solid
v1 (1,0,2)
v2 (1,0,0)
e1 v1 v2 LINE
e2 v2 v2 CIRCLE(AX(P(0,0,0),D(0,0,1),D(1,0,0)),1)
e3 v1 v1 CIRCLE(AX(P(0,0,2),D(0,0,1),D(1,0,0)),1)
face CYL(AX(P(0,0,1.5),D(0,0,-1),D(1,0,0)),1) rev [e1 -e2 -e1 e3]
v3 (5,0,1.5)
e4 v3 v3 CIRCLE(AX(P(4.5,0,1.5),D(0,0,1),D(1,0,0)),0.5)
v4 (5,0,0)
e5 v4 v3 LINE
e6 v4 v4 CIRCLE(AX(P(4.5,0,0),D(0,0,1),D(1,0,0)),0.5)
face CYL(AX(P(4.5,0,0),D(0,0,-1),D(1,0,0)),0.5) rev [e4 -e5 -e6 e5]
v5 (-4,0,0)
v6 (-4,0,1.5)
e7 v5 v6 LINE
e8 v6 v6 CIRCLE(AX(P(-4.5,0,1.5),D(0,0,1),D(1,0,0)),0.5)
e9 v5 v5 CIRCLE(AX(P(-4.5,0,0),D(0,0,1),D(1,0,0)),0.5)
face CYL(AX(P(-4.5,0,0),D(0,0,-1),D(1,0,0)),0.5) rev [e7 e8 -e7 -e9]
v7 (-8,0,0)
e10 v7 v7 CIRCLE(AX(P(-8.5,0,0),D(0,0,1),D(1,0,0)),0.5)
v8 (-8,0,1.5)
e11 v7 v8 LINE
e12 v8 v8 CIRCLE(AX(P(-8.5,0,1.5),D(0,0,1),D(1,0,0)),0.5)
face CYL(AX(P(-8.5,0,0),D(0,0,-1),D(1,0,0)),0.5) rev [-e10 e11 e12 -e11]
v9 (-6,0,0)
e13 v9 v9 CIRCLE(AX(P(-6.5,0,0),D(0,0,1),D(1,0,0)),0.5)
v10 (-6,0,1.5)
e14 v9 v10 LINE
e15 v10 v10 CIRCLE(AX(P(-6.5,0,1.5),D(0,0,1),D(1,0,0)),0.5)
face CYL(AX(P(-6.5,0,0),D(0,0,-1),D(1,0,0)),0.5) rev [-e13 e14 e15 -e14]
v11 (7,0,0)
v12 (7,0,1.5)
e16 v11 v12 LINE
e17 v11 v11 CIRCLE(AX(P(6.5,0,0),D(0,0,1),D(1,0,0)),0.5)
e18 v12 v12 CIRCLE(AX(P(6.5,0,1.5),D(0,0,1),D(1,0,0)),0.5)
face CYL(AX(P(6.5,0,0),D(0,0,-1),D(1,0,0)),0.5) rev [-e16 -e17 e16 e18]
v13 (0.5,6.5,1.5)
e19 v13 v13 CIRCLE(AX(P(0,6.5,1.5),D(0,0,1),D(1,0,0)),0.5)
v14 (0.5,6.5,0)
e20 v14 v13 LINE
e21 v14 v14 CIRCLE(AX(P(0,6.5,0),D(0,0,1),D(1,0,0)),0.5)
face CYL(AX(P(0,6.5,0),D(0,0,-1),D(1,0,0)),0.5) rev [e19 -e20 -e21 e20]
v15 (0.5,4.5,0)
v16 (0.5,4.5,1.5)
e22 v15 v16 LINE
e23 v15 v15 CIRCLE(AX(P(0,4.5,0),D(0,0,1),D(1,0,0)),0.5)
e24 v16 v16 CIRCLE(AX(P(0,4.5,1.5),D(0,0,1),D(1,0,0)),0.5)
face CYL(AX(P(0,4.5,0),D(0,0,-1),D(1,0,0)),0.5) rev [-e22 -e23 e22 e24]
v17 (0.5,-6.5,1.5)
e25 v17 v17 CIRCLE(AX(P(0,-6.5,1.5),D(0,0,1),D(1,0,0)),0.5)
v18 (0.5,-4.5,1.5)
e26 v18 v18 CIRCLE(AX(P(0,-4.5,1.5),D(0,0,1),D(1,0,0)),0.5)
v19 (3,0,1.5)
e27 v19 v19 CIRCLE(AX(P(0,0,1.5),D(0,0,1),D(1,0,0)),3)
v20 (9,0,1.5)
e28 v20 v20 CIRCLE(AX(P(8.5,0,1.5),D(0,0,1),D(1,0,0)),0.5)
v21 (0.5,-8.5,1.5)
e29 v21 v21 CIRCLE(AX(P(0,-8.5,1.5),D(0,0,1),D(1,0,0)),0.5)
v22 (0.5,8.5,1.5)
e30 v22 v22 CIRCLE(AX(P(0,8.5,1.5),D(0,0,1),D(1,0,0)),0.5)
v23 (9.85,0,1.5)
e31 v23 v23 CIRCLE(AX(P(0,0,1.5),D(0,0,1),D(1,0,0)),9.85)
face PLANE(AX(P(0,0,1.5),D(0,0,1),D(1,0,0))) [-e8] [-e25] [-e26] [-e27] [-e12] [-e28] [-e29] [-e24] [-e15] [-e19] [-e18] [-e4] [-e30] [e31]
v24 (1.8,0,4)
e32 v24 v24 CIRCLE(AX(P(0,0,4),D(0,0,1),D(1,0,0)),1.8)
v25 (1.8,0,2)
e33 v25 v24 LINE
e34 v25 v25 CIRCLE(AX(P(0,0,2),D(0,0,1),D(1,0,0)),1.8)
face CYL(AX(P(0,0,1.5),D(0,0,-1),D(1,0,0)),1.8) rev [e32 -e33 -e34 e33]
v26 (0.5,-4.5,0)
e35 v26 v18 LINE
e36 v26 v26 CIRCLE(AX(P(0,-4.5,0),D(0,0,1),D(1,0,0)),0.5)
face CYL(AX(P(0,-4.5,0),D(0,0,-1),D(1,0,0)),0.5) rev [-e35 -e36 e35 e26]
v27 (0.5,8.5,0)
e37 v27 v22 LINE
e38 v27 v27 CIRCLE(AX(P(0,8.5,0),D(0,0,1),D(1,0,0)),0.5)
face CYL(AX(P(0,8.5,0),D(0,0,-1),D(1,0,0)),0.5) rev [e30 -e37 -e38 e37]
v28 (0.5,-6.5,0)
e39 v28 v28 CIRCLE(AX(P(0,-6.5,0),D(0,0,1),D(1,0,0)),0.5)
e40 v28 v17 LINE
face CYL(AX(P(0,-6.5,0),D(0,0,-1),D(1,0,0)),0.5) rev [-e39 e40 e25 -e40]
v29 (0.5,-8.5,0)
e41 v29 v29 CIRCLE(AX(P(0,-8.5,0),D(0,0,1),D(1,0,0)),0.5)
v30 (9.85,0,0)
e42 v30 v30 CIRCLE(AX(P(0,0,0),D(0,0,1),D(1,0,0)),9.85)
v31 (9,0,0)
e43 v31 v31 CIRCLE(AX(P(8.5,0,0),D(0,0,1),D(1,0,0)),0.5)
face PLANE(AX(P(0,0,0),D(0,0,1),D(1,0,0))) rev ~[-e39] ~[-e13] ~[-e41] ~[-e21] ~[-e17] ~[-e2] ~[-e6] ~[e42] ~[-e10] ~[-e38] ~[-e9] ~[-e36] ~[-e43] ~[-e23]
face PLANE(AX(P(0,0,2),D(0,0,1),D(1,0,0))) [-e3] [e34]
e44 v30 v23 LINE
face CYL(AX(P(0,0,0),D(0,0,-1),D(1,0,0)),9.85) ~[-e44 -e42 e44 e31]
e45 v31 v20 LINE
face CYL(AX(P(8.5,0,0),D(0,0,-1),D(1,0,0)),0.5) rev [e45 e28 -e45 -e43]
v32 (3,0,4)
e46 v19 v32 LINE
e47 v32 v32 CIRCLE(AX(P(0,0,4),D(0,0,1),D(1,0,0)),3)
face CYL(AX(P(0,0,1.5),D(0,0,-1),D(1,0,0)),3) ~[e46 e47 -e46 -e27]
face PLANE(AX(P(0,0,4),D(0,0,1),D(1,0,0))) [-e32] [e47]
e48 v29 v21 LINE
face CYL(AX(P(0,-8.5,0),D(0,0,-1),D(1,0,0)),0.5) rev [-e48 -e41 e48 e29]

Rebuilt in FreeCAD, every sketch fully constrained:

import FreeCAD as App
import Part
import Sketcher
from FreeCAD import Vector
Q = App.Units.Quantity

doc = App.newDocument("Part")
params = doc.addObject("Spreadsheet::Sheet", "Params")
for row, (alias, value) in enumerate([
    ("sketch1_diameter", "1 mm"),
    ("sketch1_diameter2", "2 mm"),
    ("sketch1_diameter3", "19.7 mm"),
    ("pad1_length", "1.5 mm"),
    ("sketch2_diameter", "6 mm"),
    ("sketch2_diameter2", "3.6 mm"),
    ("pad2_length", "2.5 mm"),
    ("sketch3_diameter", "2 mm"),
    ("sketch3_diameter2", "3.6 mm"),
    ("pad3_length", "0.5 mm"),
], start=1):
    params.set(f"A{row}", alias)
    params.set(f"B{row}", "=" + value)
    params.setAlias(f"B{row}", alias)

body = doc.addObject("PartDesign::Body", "Body")

sketch1 = body.newObject("Sketcher::SketchObject", "Sketch")
sketch1.AttachmentSupport = (doc.getObject("XY_Plane"), [""])
sketch1.MapMode = "FlatFace"
sketch1.addGeometry([
    Part.Circle(Vector(0, 0, 0), Vector(0, 0, 1), 9.8),
    Part.Circle(Vector(0, -8.5, 0), Vector(0, 0, 1), 0.5),
    Part.Circle(Vector(0, -6.5, 0), Vector(0, 0, 1), 0.5),
    Part.Circle(Vector(0, -4.5, 0), Vector(0, 0, 1), 0.5),
    Part.Circle(Vector(-8.5, 0, 0), Vector(0, 0, 1), 0.5),
    Part.Circle(Vector(-6.5, 0, 0), Vector(0, 0, 1), 0.5),
    Part.Circle(Vector(-4.5, 0, 0), Vector(0, 0, 1), 0.5),
    Part.Circle(Vector(0, 0, 0), Vector(0, 0, 1), 1),
    Part.Circle(Vector(4.5, 0, 0), Vector(0, 0, 1), 0.5),
    Part.Circle(Vector(6.5, 0, 0), Vector(0, 0, 1), 0.5),
    Part.Circle(Vector(8.5, 0, 0), Vector(0, 0, 1), 0.5),
    Part.Circle(Vector(0, 4.5, 0), Vector(0, 0, 1), 0.5),
    Part.Circle(Vector(0, 6.5, 0), Vector(0, 0, 1), 0.5),
    Part.Circle(Vector(0, 8.5, 0), Vector(0, 0, 1), 0.5),
], False)
sketch1.addConstraint([
    Sketcher.Constraint("Coincident", 0, 3, -1, 1),
    Sketcher.Constraint("Coincident", 7, 3, -1, 1),
    Sketcher.Constraint("Equal", 1, 2),
    Sketcher.Constraint("Equal", 2, 3),
    Sketcher.Constraint("Equal", 3, 4),
    Sketcher.Constraint("Equal", 4, 5),
    Sketcher.Constraint("Equal", 5, 6),
    Sketcher.Constraint("Equal", 6, 8),
    Sketcher.Constraint("Equal", 8, 9),
    Sketcher.Constraint("Equal", 9, 10),
    Sketcher.Constraint("Equal", 10, 11),
    Sketcher.Constraint("Equal", 11, 12),
    Sketcher.Constraint("Equal", 12, 13),
    Sketcher.Constraint("Symmetric", 6, 3, 8, 3, -1, 1),
    Sketcher.Constraint("Symmetric", 5, 3, 9, 3, -1, 1),
    Sketcher.Constraint("Symmetric", 4, 3, 10, 3, -1, 1),
    Sketcher.Constraint("Symmetric", 3, 3, 11, 3, -1, 1),
    Sketcher.Constraint("Symmetric", 2, 3, 12, 3, -1, 1),
    Sketcher.Constraint("Symmetric", 1, 3, 13, 3, -1, 1),
    Sketcher.Constraint("PointOnObject", 1, 3, -2),
    Sketcher.Constraint("PointOnObject", 2, 3, -2),
    Sketcher.Constraint("PointOnObject", 3, 3, -2),
    Sketcher.Constraint("PointOnObject", 4, 3, -1),
    Sketcher.Constraint("PointOnObject", 5, 3, -1),
    Sketcher.Constraint("PointOnObject", 6, 3, -1),
    Sketcher.Constraint("Diameter", 1, Q("1 mm")),
    Sketcher.Constraint("Diameter", 7, Q("2 mm")),
    Sketcher.Constraint("Diameter", 0, Q("19.7 mm")),
    Sketcher.Constraint("DistanceY", 1, 3, 2, 3, Q("2 mm")),
    Sketcher.Constraint("DistanceY", 2, 3, 3, 3, Q("2 mm")),
    Sketcher.Constraint("DistanceX", 4, 3, 5, 3, Q("2 mm")),
    Sketcher.Constraint("DistanceX", 5, 3, 6, 3, Q("2 mm")),
    Sketcher.Constraint("DistanceX", 6, 3, 8, 3, Q("9 mm")),
    Sketcher.Constraint("DistanceY", 1, 3, -1, 1, Q("8.5 mm")),
])
sketch1.setExpression("Constraints[25]", "Params.sketch1_diameter")
sketch1.setExpression("Constraints[26]", "Params.sketch1_diameter2")
sketch1.setExpression("Constraints[27]", "Params.sketch1_diameter3")
pad1 = body.newObject("PartDesign::Pad", "Pad")
pad1.Profile = sketch1
pad1.setExpression("Length", "Params.pad1_length")

sketch2 = body.newObject("Sketcher::SketchObject", "Sketch001")
sketch2.AttachmentSupport = (doc.getObject("XY_Plane"), [""])
sketch2.MapMode = "FlatFace"
sketch2.AttachmentOffset = App.Placement(Vector(0, 0, 1.5), App.Rotation())
sketch2.addGeometry([
    Part.Circle(Vector(0, 0, 0), Vector(0, 0, 1), 3),
    Part.Circle(Vector(0, 0, 0), Vector(0, 0, 1), 1.8),
], False)
sketch2.addConstraint([
    Sketcher.Constraint("Coincident", 0, 3, -1, 1),
    Sketcher.Constraint("Coincident", 1, 3, -1, 1),
    Sketcher.Constraint("Diameter", 0, Q("6 mm")),
    Sketcher.Constraint("Diameter", 1, Q("3.6 mm")),
])
sketch2.setExpression("Constraints[2]", "Params.sketch2_diameter")
sketch2.setExpression("Constraints[3]", "Params.sketch2_diameter2")
pad2 = body.newObject("PartDesign::Pad", "Pad001")
pad2.Profile = sketch2
pad2.setExpression("Length", "Params.pad2_length")

sketch3 = body.newObject("Sketcher::SketchObject", "Sketch002")
sketch3.AttachmentSupport = (doc.getObject("XY_Plane"), [""])
sketch3.MapMode = "FlatFace"
sketch3.AttachmentOffset = App.Placement(Vector(0, 0, 1.5), App.Rotation())
sketch3.addGeometry([
    Part.Circle(Vector(0, 0, 0), Vector(0, 0, 1), 1.8),
    Part.Circle(Vector(0, 0, 0), Vector(0, 0, 1), 1),
], False)
sketch3.addConstraint([
    Sketcher.Constraint("Coincident", 0, 3, -1, 1),
    Sketcher.Constraint("Coincident", 1, 3, -1, 1),
    Sketcher.Constraint("Diameter", 1, Q("2 mm")),
    Sketcher.Constraint("Diameter", 0, Q("3.6 mm")),
])
sketch3.setExpression("Constraints[2]", "Params.sketch3_diameter")
sketch3.setExpression("Constraints[3]", "Params.sketch3_diameter2")
pad3 = body.newObject("PartDesign::Pad", "Pad002")
pad3.Profile = sketch3
pad3.setExpression("Length", "Params.pad3_length")

doc.recompute()
